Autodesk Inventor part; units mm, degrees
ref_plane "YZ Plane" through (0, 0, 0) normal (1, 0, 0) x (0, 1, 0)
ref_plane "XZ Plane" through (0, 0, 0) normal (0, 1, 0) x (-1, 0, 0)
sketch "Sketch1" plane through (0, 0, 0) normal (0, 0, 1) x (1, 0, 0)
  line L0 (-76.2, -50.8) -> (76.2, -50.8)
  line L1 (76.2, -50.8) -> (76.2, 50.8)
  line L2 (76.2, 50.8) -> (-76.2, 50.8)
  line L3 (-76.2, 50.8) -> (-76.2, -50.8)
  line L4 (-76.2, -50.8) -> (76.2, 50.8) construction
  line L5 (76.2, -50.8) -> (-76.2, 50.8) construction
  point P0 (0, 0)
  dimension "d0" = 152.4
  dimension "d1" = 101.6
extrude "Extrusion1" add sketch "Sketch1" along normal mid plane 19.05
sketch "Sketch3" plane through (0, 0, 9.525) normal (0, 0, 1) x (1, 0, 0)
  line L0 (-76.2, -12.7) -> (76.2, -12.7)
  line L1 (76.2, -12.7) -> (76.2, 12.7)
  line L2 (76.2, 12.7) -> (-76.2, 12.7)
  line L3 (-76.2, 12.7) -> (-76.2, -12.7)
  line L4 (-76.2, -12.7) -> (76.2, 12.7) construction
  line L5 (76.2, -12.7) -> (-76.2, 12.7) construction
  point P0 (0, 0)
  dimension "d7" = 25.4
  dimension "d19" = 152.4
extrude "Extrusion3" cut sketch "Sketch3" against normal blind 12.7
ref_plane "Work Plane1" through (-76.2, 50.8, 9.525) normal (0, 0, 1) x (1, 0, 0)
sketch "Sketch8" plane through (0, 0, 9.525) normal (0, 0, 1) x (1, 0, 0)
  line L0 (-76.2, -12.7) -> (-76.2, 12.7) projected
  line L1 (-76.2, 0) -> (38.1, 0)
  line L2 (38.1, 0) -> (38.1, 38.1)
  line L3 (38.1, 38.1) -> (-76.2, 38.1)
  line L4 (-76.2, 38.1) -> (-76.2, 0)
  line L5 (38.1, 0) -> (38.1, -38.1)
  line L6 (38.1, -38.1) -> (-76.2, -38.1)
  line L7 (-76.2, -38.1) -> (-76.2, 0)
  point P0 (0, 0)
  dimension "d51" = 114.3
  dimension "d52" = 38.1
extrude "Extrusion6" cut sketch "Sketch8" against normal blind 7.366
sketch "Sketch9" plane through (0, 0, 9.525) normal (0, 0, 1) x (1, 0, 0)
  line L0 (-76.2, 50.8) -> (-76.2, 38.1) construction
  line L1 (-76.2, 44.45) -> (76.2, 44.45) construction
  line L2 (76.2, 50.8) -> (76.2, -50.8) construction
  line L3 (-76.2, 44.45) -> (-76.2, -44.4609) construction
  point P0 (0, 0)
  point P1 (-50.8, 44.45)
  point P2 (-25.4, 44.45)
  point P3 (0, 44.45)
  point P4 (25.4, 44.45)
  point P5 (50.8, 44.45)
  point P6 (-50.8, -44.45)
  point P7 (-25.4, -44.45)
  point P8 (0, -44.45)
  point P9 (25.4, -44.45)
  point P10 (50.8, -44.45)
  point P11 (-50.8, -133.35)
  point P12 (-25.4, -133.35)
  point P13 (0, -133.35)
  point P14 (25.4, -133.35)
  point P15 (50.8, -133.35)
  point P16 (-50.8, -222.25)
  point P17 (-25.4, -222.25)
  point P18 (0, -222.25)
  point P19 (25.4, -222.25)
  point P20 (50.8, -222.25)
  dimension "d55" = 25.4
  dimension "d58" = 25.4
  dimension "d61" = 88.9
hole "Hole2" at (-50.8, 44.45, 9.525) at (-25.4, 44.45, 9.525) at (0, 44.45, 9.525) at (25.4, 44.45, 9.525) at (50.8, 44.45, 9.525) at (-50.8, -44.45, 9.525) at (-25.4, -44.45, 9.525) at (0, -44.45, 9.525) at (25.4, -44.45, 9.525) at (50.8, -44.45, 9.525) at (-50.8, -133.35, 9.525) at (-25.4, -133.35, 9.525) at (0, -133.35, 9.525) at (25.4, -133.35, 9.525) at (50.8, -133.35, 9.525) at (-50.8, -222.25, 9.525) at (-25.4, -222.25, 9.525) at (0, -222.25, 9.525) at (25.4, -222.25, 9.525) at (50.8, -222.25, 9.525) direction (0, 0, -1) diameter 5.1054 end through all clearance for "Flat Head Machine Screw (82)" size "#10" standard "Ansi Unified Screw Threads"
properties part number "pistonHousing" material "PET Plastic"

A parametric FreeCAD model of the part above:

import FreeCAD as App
import Part
import Sketcher
Q = App.Units.Quantity

doc = App.newDocument("Part")
body = doc.addObject("PartDesign::Body", "Body")

# Sketch on XY plane
sketch1 = doc.addObject("Sketcher::SketchObject", "Sketch")
body.addObject(sketch1)
sketch1.AttachmentSupport = (doc.XY_Plane, [""])
sketch1.MapMode = "FlatFace"
sketch1.addGeometry([
    Part.LineSegment(App.Vector(-76, 51, 0), App.Vector(-76, -51, 0)),
    Part.LineSegment(App.Vector(-76, -51, 0), App.Vector(76, -51, 0)),
    Part.LineSegment(App.Vector(76, -51, 0), App.Vector(76, 51, 0)),
    Part.LineSegment(App.Vector(76, 51, 0), App.Vector(-76, 51, 0)),
], False)
sketch1.addConstraint([
    Sketcher.Constraint("Coincident", 0, 2, 1, 1),
    Sketcher.Constraint("Coincident", 1, 2, 2, 1),
    Sketcher.Constraint("Coincident", 2, 2, 3, 1),
    Sketcher.Constraint("Coincident", 3, 2, 0, 1),
    Sketcher.Constraint("Vertical", 0),
    Sketcher.Constraint("Horizontal", 1),
    Sketcher.Constraint("Vertical", 2),
    Sketcher.Constraint("Horizontal", 3),
    Sketcher.Constraint("Symmetric", 0, 2, 2, 2, -1, 1),
    Sketcher.Constraint("DistanceX", 1, 1, 1, 2, Q("6 in")),
    Sketcher.Constraint("DistanceY", 0, 2, 0, 1, Q("4 in")),
])
pad1 = doc.addObject("PartDesign::Pad", "Pad")
body.addObject(pad1)
pad1.Profile = sketch1
pad1.Length = Q("0.75 in")
pad1.Midplane = True

# Sketch on XY plane
sketch2 = doc.addObject("Sketcher::SketchObject", "Sketch001")
body.addObject(sketch2)
sketch2.AttachmentSupport = (doc.XY_Plane, [""])
sketch2.MapMode = "FlatFace"
sketch2.AttachmentOffset = App.Placement(App.Vector(0, 0, 0.375 * 25.4), App.Rotation())
sketch2.addGeometry([
    Part.LineSegment(App.Vector(-76, 13, 0), App.Vector(-76, -13, 0)),
    Part.LineSegment(App.Vector(-76, -13, 0), App.Vector(76, -13, 0)),
    Part.LineSegment(App.Vector(76, -13, 0), App.Vector(76, 13, 0)),
    Part.LineSegment(App.Vector(76, 13, 0), App.Vector(-76, 13, 0)),
], False)
sketch2.addConstraint([
    Sketcher.Constraint("Coincident", 0, 2, 1, 1),
    Sketcher.Constraint("Coincident", 1, 2, 2, 1),
    Sketcher.Constraint("Coincident", 2, 2, 3, 1),
    Sketcher.Constraint("Coincident", 3, 2, 0, 1),
    Sketcher.Constraint("Vertical", 0),
    Sketcher.Constraint("Horizontal", 1),
    Sketcher.Constraint("Vertical", 2),
    Sketcher.Constraint("Horizontal", 3),
    Sketcher.Constraint("Symmetric", 0, 2, 2, 2, -1, 1),
    Sketcher.Constraint("DistanceX", 1, 1, 1, 2, Q("6 in")),
    Sketcher.Constraint("DistanceY", 0, 2, 0, 1, Q("1 in")),
])
pocket1 = doc.addObject("PartDesign::Pocket", "Pocket")
body.addObject(pocket1)
pocket1.Profile = sketch2
pocket1.Length = Q("0.5 in")

# Sketch on XY plane
sketch3 = doc.addObject("Sketcher::SketchObject", "Sketch002")
body.addObject(sketch3)
sketch3.AttachmentSupport = (doc.XY_Plane, [""])
sketch3.MapMode = "FlatFace"
sketch3.AttachmentOffset = App.Placement(App.Vector(0, 0, 0.375 * 25.4), App.Rotation())
sketch3.addGeometry([
    Part.LineSegment(App.Vector(-76, -38, 0), App.Vector(38, -38, 0)),
    Part.LineSegment(App.Vector(38, -38, 0), App.Vector(38, 38, 0)),
    Part.LineSegment(App.Vector(38, 38, 0), App.Vector(-76, 38, 0)),
    Part.LineSegment(App.Vector(-76, 38, 0), App.Vector(-76, -38, 0)),
], False)
sketch3.addConstraint([
    Sketcher.Constraint("Coincident", 0, 2, 1, 1),
    Sketcher.Constraint("Coincident", 1, 2, 2, 1),
    Sketcher.Constraint("Coincident", 2, 2, 3, 1),
    Sketcher.Constraint("Coincident", 3, 2, 0, 1),
    Sketcher.Constraint("Horizontal", 0),
    Sketcher.Constraint("Vertical", 1),
    Sketcher.Constraint("Horizontal", 2),
    Sketcher.Constraint("Vertical", 3),
    Sketcher.Constraint("DistanceX", 0, 1, 0, 2, Q("4.5 in")),
    Sketcher.Constraint("DistanceX", -1, 1, 0, 2, Q("1.5 in")),
    Sketcher.Constraint("DistanceY", 0, 2, -1, 1, Q("1.5 in")),
    Sketcher.Constraint("DistanceY", -1, 1, 1, 2, Q("1.5 in")),
])
pocket2 = doc.addObject("PartDesign::Pocket", "Pocket001")
body.addObject(pocket2)
pocket2.Profile = sketch3
pocket2.Length = Q("0.29 in")

# Sketch on XY plane
sketch4 = doc.addObject("Sketcher::SketchObject", "Sketch003")
body.addObject(sketch4)
sketch4.AttachmentSupport = (doc.XY_Plane, [""])
sketch4.MapMode = "FlatFace"
sketch4.AttachmentOffset = App.Placement(App.Vector(0, 0, 0.375 * 25.4), App.Rotation())
sketch4.addGeometry([
    Part.Circle(App.Vector(-50.8, 44.5, 0), App.Vector(0, 0, 1), 2.6),  # 0
    Part.Circle(App.Vector(-25.4, 44.5, 0), App.Vector(0, 0, 1), 2.6),  # 1
    Part.Circle(App.Vector(0, 44.5, 0), App.Vector(0, 0, 1), 2.6),  # 2
    Part.Circle(App.Vector(25.4, 44.5, 0), App.Vector(0, 0, 1), 2.6),  # 3
    Part.Circle(App.Vector(50.8, 44.5, 0), App.Vector(0, 0, 1), 2.6),  # 4
    Part.Circle(App.Vector(-50.8, -44.5, 0), App.Vector(0, 0, 1), 2.6),  # 5
    Part.Circle(App.Vector(-25.4, -44.5, 0), App.Vector(0, 0, 1), 2.6),  # 6
    Part.Circle(App.Vector(0, -44.5, 0), App.Vector(0, 0, 1), 2.6),  # 7
    Part.Circle(App.Vector(25.4, -44.5, 0), App.Vector(0, 0, 1), 2.6),  # 8
    Part.Circle(App.Vector(50.8, -44.5, 0), App.Vector(0, 0, 1), 2.6),  # 9
    Part.Circle(App.Vector(-50.8, -133.3, 0), App.Vector(0, 0, 1), 2.6),  # 10
    Part.Circle(App.Vector(-25.4, -133.3, 0), App.Vector(0, 0, 1), 2.6),  # 11
    Part.Circle(App.Vector(0, -133.3, 0), App.Vector(0, 0, 1), 2.6),  # 12
    Part.Circle(App.Vector(25.4, -133.3, 0), App.Vector(0, 0, 1), 2.6),  # 13
    Part.Circle(App.Vector(50.8, -133.3, 0), App.Vector(0, 0, 1), 2.6),  # 14
    Part.Circle(App.Vector(-50.8, -222.2, 0), App.Vector(0, 0, 1), 2.6),  # 15
    Part.Circle(App.Vector(-25.4, -222.2, 0), App.Vector(0, 0, 1), 2.6),  # 16
    Part.Circle(App.Vector(0, -222.2, 0), App.Vector(0, 0, 1), 2.6),  # 17
    Part.Circle(App.Vector(25.4, -222.2, 0), App.Vector(0, 0, 1), 2.6),  # 18
    Part.Circle(App.Vector(50.8, -222.2, 0), App.Vector(0, 0, 1), 2.6),  # 19
], False)
sketch4.addConstraint([
    Sketcher.Constraint("Equal", 0, 1),
    Sketcher.Constraint("Equal", 1, 2),
    Sketcher.Constraint("Equal", 2, 3),
    Sketcher.Constraint("Equal", 3, 4),
    Sketcher.Constraint("Equal", 4, 5),
    Sketcher.Constraint("Equal", 5, 6),
    Sketcher.Constraint("Equal", 6, 7),
    Sketcher.Constraint("Equal", 7, 8),
    Sketcher.Constraint("Equal", 8, 9),
    Sketcher.Constraint("Equal", 9, 10),
    Sketcher.Constraint("Equal", 10, 11),
    Sketcher.Constraint("Equal", 11, 12),
    Sketcher.Constraint("Equal", 12, 13),
    Sketcher.Constraint("Equal", 13, 14),
    Sketcher.Constraint("Equal", 14, 15),
    Sketcher.Constraint("Equal", 15, 16),
    Sketcher.Constraint("Equal", 16, 17),
    Sketcher.Constraint("Equal", 17, 18),
    Sketcher.Constraint("Equal", 18, 19),
    Sketcher.Constraint("Symmetric", 4, 3, 5, 3, -1, 1),
    Sketcher.Constraint("Symmetric", 3, 3, 6, 3, -1, 1),
    Sketcher.Constraint("Symmetric", 2, 3, 7, 3, -1, 1),
    Sketcher.Constraint("Symmetric", 1, 3, 8, 3, -1, 1),
    Sketcher.Constraint("Symmetric", 0, 3, 9, 3, -1, 1),
    Sketcher.Constraint("Symmetric", 1, 3, 3, 3, -2),
    Sketcher.Constraint("Symmetric", 0, 3, 4, 3, -2),
    Sketcher.Constraint("Symmetric", 11, 3, 13, 3, -2),
    Sketcher.Constraint("Symmetric", 10, 3, 14, 3, -2),
    Sketcher.Constraint("Symmetric", 16, 3, 18, 3, -2),
    Sketcher.Constraint("Symmetric", 15, 3, 19, 3, -2),
    Sketcher.Constraint("PointOnObject", 2, 3, -2),
    Sketcher.Constraint("PointOnObject", 12, 3, -2),
    Sketcher.Constraint("PointOnObject", 17, 3, -2),
    Sketcher.Constraint("Horizontal", 0, 3, 1, 3),
    Sketcher.Constraint("Horizontal", 1, 3, 2, 3),
    Sketcher.Constraint("Horizontal", 10, 3, 11, 3),
    Sketcher.Constraint("Horizontal", 11, 3, 12, 3),
    Sketcher.Constraint("Horizontal", 15, 3, 16, 3),
    Sketcher.Constraint("Horizontal", 16, 3, 17, 3),
    Sketcher.Constraint("Vertical", 5, 3, 10, 3),
    Sketcher.Constraint("Vertical", 6, 3, 11, 3),
    Sketcher.Constraint("Vertical", 10, 3, 15, 3),
    Sketcher.Constraint("Vertical", 11, 3, 16, 3),
    Sketcher.Constraint("Diameter", 0, Q("0.201 in")),
    Sketcher.Constraint("DistanceX", 0, 3, -1, 1, Q("2 in")),
    Sketcher.Constraint("DistanceX", 1, 3, -1, 1, Q("1 in")),
    Sketcher.Constraint("DistanceY", 5, 3, 0, 3, Q("3.5 in")),
    Sketcher.Constraint("DistanceY", 10, 3, 5, 3, Q("3.5 in")),
    Sketcher.Constraint("DistanceY", 15, 3, 10, 3, Q("3.5 in")),
])
doc.recompute()
hole = doc.addObject("PartDesign::Hole", "Hole")
body.addObject(hole)
hole.Profile = sketch4
hole.ThreadType = "None"
hole.Diameter = Q("0.201 in")
hole.DepthType = "ThroughAll"

doc.recompute()
